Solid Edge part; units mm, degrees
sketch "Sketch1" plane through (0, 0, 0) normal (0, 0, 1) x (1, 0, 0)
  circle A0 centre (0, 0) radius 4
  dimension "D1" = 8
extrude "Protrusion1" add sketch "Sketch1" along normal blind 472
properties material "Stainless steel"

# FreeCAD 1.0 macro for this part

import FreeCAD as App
import Part
import Sketcher

V = App.Vector
Q = App.Units.Quantity

doc = App.newDocument("Part")
body = doc.addObject("PartDesign::Body", "Body")

sketch1 = doc.addObject("Sketcher::SketchObject", "Sketch")
body.addObject(sketch1)
sketch1.AttachmentSupport = (doc.XY_Plane, [""])
sketch1.MapMode = "FlatFace"
sketch1.addGeometry(Part.Circle(V(0, 0, 0), V(0, 0, 1), 4), False)
sketch1.addConstraint(Sketcher.Constraint("Coincident", 0, 3, -1, 1))
sketch1.addConstraint(Sketcher.Constraint("Diameter", 0, Q("8 mm")))
pad1 = doc.addObject("PartDesign::Pad", "Pad")
body.addObject(pad1)
pad1.Profile = sketch1
pad1.Length = 472

doc.recompute()
